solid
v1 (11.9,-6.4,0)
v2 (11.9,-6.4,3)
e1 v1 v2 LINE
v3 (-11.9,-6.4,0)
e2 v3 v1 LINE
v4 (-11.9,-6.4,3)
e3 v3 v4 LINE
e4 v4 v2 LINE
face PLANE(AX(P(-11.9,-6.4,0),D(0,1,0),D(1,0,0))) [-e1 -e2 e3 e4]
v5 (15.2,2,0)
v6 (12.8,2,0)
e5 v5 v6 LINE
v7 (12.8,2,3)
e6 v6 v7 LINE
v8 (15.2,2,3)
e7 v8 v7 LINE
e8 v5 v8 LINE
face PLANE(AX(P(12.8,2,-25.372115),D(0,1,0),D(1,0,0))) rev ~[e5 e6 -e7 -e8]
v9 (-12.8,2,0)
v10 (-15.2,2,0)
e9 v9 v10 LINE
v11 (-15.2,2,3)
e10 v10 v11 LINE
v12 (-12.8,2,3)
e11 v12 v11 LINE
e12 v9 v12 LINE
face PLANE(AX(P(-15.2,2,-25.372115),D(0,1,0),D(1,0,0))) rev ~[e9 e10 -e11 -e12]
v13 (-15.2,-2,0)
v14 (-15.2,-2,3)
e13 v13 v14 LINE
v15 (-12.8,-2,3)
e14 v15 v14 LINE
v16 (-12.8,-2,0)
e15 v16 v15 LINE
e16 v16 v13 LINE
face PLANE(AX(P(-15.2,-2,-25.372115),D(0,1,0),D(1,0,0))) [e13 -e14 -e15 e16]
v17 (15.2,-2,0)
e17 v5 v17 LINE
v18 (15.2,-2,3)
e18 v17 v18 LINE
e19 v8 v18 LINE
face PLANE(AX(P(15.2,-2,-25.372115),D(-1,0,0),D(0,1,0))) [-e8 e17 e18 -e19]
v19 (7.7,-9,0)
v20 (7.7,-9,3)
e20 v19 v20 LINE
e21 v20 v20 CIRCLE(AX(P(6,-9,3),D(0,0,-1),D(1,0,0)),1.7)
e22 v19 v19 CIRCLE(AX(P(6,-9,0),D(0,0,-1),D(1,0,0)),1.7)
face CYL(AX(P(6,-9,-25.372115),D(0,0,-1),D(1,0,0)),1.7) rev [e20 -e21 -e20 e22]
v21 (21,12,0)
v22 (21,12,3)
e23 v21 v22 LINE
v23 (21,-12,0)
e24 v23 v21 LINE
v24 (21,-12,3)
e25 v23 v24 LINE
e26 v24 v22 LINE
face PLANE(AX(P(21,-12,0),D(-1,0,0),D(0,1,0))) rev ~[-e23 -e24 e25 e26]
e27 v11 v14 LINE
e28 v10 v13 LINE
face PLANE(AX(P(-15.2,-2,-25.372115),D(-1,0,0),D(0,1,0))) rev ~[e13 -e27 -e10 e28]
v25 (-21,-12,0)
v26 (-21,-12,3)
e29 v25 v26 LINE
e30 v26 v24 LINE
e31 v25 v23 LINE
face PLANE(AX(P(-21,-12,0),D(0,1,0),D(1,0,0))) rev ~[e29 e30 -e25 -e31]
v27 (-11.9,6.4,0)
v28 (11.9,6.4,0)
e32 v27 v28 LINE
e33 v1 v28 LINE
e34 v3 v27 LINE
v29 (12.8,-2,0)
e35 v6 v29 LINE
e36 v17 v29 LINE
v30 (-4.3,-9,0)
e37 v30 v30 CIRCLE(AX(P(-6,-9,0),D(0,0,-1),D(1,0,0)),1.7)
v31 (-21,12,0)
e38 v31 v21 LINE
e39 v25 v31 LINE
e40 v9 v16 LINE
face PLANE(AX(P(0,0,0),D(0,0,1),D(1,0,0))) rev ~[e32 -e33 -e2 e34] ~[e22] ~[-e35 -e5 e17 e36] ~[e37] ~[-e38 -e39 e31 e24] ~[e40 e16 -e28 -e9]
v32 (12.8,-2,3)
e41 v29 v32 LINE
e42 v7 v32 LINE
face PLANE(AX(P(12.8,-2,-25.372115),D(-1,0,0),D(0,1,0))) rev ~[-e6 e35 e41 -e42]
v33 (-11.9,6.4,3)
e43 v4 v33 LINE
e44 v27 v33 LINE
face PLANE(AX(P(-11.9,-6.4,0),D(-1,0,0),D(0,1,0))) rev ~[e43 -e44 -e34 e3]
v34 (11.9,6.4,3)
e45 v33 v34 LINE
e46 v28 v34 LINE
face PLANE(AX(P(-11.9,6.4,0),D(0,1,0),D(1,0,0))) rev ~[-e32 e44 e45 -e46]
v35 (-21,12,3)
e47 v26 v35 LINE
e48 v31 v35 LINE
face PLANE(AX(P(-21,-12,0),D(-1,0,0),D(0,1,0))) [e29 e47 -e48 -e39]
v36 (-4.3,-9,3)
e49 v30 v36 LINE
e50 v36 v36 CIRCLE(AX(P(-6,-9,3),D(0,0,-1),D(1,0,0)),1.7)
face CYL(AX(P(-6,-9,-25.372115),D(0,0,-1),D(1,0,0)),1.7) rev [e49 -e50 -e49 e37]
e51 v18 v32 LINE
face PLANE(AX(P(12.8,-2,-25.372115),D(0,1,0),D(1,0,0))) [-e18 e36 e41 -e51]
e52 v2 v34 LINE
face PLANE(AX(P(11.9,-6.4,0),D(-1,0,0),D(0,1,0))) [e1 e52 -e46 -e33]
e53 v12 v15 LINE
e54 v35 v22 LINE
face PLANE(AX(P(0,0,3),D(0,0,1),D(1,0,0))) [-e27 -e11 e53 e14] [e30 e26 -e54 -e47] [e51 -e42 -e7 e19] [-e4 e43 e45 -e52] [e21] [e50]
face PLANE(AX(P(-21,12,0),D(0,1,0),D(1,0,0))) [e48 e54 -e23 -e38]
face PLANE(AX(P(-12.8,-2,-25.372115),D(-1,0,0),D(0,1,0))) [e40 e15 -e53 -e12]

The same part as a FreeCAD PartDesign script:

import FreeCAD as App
import Part
import Sketcher

V = App.Vector

doc = App.newDocument("Part")
params = doc.addObject("Spreadsheet::Sheet", "Params")
for row, (alias, value) in enumerate([
    ("sketch1_width", "42 mm"),
    ("sketch1_height", "24 mm"),
    ("sketch1_width2", "23.8 mm"),
    ("sketch1_height2", "12.8 mm"),
    ("pad1_length", "3 mm"),
    ("sketch2_height", "4 mm"),
    ("sketch2_width", "2.4 mm"),
    ("sketch3_diameter", "3.4 mm"),
], start=1):
    params.set(f"A{row}", alias)
    params.set(f"B{row}", "=" + value)
    params.setAlias(f"B{row}", alias)

body = doc.addObject("PartDesign::Body", "Body")

# Sketch on XY plane
sketch1 = doc.addObject("Sketcher::SketchObject", "Sketch")
body.addObject(sketch1)
sketch1.AttachmentSupport = (doc.XY_Plane, [""])
sketch1.MapMode = "FlatFace"
sketch1.addGeometry([
    Part.LineSegment(V(-21, 12, 0), V(-21, -12, 0)),  # 0
    Part.LineSegment(V(-21, -12, 0), V(21, -12, 0)),  # 1
    Part.LineSegment(V(21, -12, 0), V(21, 12, 0)),  # 2
    Part.LineSegment(V(21, 12, 0), V(-21, 12, 0)),  # 3
    Part.LineSegment(V(12, -6, 0), V(-12, -6, 0)),  # 4
    Part.LineSegment(V(-12, -6, 0), V(-12, 6, 0)),  # 5
    Part.LineSegment(V(-12, 6, 0), V(12, 6, 0)),  # 6
    Part.LineSegment(V(12, 6, 0), V(12, -6, 0)),  # 7
], False)
sketch1.addConstraint([
    Sketcher.Constraint("Coincident", 0, 2, 1, 1),
    Sketcher.Constraint("Coincident", 1, 2, 2, 1),
    Sketcher.Constraint("Coincident", 2, 2, 3, 1),
    Sketcher.Constraint("Coincident", 3, 2, 0, 1),
    Sketcher.Constraint("Coincident", 4, 2, 5, 1),
    Sketcher.Constraint("Coincident", 5, 2, 6, 1),
    Sketcher.Constraint("Coincident", 6, 2, 7, 1),
    Sketcher.Constraint("Coincident", 7, 2, 4, 1),
    Sketcher.Constraint("Vertical", 0),
    Sketcher.Constraint("Horizontal", 1),
    Sketcher.Constraint("Vertical", 2),
    Sketcher.Constraint("Horizontal", 3),
    Sketcher.Constraint("Horizontal", 4),
    Sketcher.Constraint("Vertical", 5),
    Sketcher.Constraint("Horizontal", 6),
    Sketcher.Constraint("Vertical", 7),
    Sketcher.Constraint("Symmetric", 0, 2, 2, 2, -1, 1),
    Sketcher.Constraint("Symmetric", 4, 2, 6, 2, -1, 1),
    Sketcher.Constraint("DistanceX", 1, 1, 1, 2, 42.0),
    Sketcher.Constraint("DistanceY", 0, 2, 0, 1, 24.0),
    Sketcher.Constraint("DistanceX", 4, 2, 4, 1, 23.8),
    Sketcher.Constraint("DistanceY", 5, 1, 5, 2, 12.8),
])
sketch1.setExpression("Constraints[18]", "Params.sketch1_width")
sketch1.setExpression("Constraints[19]", "Params.sketch1_height")
sketch1.setExpression("Constraints[20]", "Params.sketch1_width2")
sketch1.setExpression("Constraints[21]", "Params.sketch1_height2")
pad1 = doc.addObject("PartDesign::Pad", "Pad")
body.addObject(pad1)
pad1.Profile = sketch1
pad1.setExpression("Length", "Params.pad1_length")

# Sketch on XY plane
sketch2 = doc.addObject("Sketcher::SketchObject", "Sketch001")
body.addObject(sketch2)
sketch2.AttachmentSupport = (doc.XY_Plane, [""])
sketch2.MapMode = "FlatFace"
sketch2.addGeometry([
    Part.LineSegment(V(-15.2, 2, 0), V(-15.2, -2, 0)),  # 0
    Part.LineSegment(V(-15.2, -2, 0), V(-12.8, -2, 0)),  # 1
    Part.LineSegment(V(-12.8, -2, 0), V(-12.8, 2, 0)),  # 2
    Part.LineSegment(V(-12.8, 2, 0), V(-15.2, 2, 0)),  # 3
    Part.LineSegment(V(12.8, 2, 0), V(12.8, -2, 0)),  # 4
    Part.LineSegment(V(12.8, -2, 0), V(15.2, -2, 0)),  # 5
    Part.LineSegment(V(15.2, -2, 0), V(15.2, 2, 0)),  # 6
    Part.LineSegment(V(15.2, 2, 0), V(12.8, 2, 0)),  # 7
], False)
sketch2.addConstraint([
    Sketcher.Constraint("Coincident", 0, 2, 1, 1),
    Sketcher.Constraint("Coincident", 1, 2, 2, 1),
    Sketcher.Constraint("Coincident", 2, 2, 3, 1),
    Sketcher.Constraint("Coincident", 3, 2, 0, 1),
    Sketcher.Constraint("Coincident", 4, 2, 5, 1),
    Sketcher.Constraint("Coincident", 5, 2, 6, 1),
    Sketcher.Constraint("Coincident", 6, 2, 7, 1),
    Sketcher.Constraint("Coincident", 7, 2, 4, 1),
    Sketcher.Constraint("Vertical", 0),
    Sketcher.Constraint("Horizontal", 1),
    Sketcher.Constraint("Vertical", 2),
    Sketcher.Constraint("Horizontal", 3),
    Sketcher.Constraint("Vertical", 4),
    Sketcher.Constraint("Horizontal", 5),
    Sketcher.Constraint("Vertical", 6),
    Sketcher.Constraint("Horizontal", 7),
    Sketcher.Constraint("Symmetric", 2, 2, 4, 2, -1, 1),
    Sketcher.Constraint("Symmetric", 0, 2, 6, 2, -1, 1),
    Sketcher.Constraint("Horizontal", 1, 2, 4, 2),
    Sketcher.Constraint("DistanceY", 0, 2, 0, 1, 4.0),
    Sketcher.Constraint("DistanceX", 1, 1, 1, 2, 2.4),
    Sketcher.Constraint("DistanceX", 0, 2, 4, 2, 28.0),
])
sketch2.setExpression("Constraints[19]", "Params.sketch2_height")
sketch2.setExpression("Constraints[20]", "Params.sketch2_width")
pocket1 = doc.addObject("PartDesign::Pocket", "Pocket")
body.addObject(pocket1)
pocket1.Profile = sketch2
pocket1.Type = "ThroughAll"
pocket1.Midplane = True

# Sketch on XY plane
sketch3 = doc.addObject("Sketcher::SketchObject", "Sketch002")
body.addObject(sketch3)
sketch3.AttachmentSupport = (doc.XY_Plane, [""])
sketch3.MapMode = "FlatFace"
sketch3.addGeometry([
    Part.Circle(V(-6, -9, 0), V(0, 0, 1), 1.7),
    Part.Circle(V(6, -9, 0), V(0, 0, 1), 1.7),
], False)
sketch3.addConstraint([
    Sketcher.Constraint("Equal", 0, 1),
    Sketcher.Constraint("Symmetric", 0, 3, 1, 3, -2),
    Sketcher.Constraint("Diameter", 0, 3.4),
    Sketcher.Constraint("DistanceX", 0, 3, -1, 1, 6.0),
    Sketcher.Constraint("DistanceY", 0, 3, -1, 1, 9.0),
])
sketch3.setExpression("Constraints[2]", "Params.sketch3_diameter")
pocket2 = doc.addObject("PartDesign::Pocket", "Pocket001")
body.addObject(pocket2)
pocket2.Profile = sketch3
pocket2.Type = "ThroughAll"
pocket2.Midplane = True

doc.recompute()
